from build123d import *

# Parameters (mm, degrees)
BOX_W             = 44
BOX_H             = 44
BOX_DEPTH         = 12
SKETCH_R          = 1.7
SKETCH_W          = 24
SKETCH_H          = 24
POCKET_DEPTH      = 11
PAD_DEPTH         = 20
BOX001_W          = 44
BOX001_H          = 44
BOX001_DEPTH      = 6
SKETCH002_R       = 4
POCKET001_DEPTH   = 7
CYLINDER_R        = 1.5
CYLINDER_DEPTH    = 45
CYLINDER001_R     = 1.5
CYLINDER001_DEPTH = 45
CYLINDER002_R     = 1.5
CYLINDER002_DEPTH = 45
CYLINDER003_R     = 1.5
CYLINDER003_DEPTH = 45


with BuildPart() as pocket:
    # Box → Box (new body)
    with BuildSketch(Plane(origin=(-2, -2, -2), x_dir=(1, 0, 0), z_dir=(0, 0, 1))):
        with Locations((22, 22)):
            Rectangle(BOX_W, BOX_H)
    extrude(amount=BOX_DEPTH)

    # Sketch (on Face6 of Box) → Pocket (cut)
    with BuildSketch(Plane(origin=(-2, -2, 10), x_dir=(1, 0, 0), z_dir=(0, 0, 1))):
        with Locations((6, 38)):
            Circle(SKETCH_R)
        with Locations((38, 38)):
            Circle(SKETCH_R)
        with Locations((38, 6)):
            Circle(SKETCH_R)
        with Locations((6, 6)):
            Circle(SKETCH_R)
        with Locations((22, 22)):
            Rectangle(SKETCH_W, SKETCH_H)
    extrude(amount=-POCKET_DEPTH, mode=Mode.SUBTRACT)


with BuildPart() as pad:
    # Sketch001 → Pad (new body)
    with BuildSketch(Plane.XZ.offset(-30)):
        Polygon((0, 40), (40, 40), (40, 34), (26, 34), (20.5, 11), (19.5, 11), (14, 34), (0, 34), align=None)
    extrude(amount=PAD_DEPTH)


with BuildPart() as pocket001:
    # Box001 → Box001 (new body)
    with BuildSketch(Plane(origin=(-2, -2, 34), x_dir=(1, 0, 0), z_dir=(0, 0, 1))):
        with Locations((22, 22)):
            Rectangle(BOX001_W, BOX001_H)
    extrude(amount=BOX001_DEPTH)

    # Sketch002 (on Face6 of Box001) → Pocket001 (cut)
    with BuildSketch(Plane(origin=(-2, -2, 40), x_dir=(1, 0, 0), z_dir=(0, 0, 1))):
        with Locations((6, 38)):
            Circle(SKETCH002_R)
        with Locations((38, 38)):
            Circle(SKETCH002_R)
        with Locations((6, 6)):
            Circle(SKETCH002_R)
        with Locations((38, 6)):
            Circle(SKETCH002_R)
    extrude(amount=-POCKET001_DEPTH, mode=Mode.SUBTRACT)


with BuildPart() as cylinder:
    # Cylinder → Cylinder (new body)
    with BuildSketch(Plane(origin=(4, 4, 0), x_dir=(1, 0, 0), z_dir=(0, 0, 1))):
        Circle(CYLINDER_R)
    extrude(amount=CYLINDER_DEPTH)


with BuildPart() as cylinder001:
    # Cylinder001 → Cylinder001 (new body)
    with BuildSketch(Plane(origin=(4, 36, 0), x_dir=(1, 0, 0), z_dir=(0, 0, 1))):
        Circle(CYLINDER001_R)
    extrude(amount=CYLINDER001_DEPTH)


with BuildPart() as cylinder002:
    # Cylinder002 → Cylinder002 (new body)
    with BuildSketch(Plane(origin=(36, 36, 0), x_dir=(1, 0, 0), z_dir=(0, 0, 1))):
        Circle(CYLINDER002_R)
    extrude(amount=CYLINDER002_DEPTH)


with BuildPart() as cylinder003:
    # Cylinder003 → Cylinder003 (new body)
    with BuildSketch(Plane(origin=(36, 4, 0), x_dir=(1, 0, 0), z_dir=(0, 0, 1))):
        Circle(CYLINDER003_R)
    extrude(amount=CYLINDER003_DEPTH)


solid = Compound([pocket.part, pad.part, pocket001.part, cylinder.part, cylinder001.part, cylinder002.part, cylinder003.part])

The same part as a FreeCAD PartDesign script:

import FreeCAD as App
import Part
import Sketcher
from FreeCAD import Vector

doc = App.newDocument("Part")
params = doc.addObject("Spreadsheet::Sheet", "Params")
for row, (alias, value) in enumerate([
    ("sketch1_width", "44 mm"),
    ("pad1_length", "12 mm"),
    ("sketch2_diameter", "3.4 mm"),
    ("sketch2_width", "24 mm"),
    ("pocket1_length", "11 mm"),
    ("sketch3_width", "40 mm"),
    ("sketch3_width2", "14 mm"),
    ("sketch3_width3", "1 mm"),
    ("sketch3_height", "6 mm"),
    ("pad2_length", "20 mm"),
    ("sketch4_width", "44 mm"),
    ("pad3_length", "6 mm"),
    ("sketch5_diameter", "8 mm"),
    ("pocket2_length", "7 mm"),
    ("sketch6_diameter", "3 mm"),
    ("pad4_length", "45 mm"),
    ("sketch7_diameter", "3 mm"),
    ("pad5_length", "45 mm"),
    ("sketch8_diameter", "3 mm"),
    ("pad6_length", "45 mm"),
    ("sketch9_diameter", "3 mm"),
    ("pad7_length", "45 mm"),
], start=1):
    params.set(f"A{row}", alias)
    params.set(f"B{row}", "=" + value)
    params.setAlias(f"B{row}", alias)

body = doc.addObject("PartDesign::Body", "Body")

# Sketch on XY plane
sketch1 = doc.addObject("Sketcher::SketchObject", "Sketch")
body.addObject(sketch1)
sketch1.AttachmentSupport = (doc.XY_Plane, [""])
sketch1.MapMode = "FlatFace"
sketch1.AttachmentOffset = App.Placement(Vector(0, 0, -2), App.Rotation())
sketch1.addGeometry(Part.LineSegment(Vector(-2, 42, 0), Vector(-2, -2, 0)), False)
sketch1.addGeometry(Part.LineSegment(Vector(-2, -2, 0), Vector(42, -2, 0)), False)
sketch1.addGeometry(Part.LineSegment(Vector(42, -2, 0), Vector(42, 42, 0)), False)
sketch1.addGeometry(Part.LineSegment(Vector(42, 42, 0), Vector(-2, 42, 0)), False)
sketch1.addConstraint(Sketcher.Constraint("Coincident", 0, 2, 1, 1))
sketch1.addConstraint(Sketcher.Constraint("Coincident", 1, 2, 2, 1))
sketch1.addConstraint(Sketcher.Constraint("Coincident", 2, 2, 3, 1))
sketch1.addConstraint(Sketcher.Constraint("Coincident", 3, 2, 0, 1))
sketch1.addConstraint(Sketcher.Constraint("Vertical", 0))
sketch1.addConstraint(Sketcher.Constraint("Horizontal", 1))
sketch1.addConstraint(Sketcher.Constraint("Vertical", 2))
sketch1.addConstraint(Sketcher.Constraint("Horizontal", 3))
sketch1.addConstraint(Sketcher.Constraint("Equal", 3, 0))
sketch1.addConstraint(Sketcher.Constraint("DistanceX", 1, 1, 1, 2, 44.0))
sketch1.addConstraint(Sketcher.Constraint("DistanceX", 0, 2, -1, 1, 2.0))
sketch1.addConstraint(Sketcher.Constraint("DistanceY", 0, 2, -1, 1, 2.0))
sketch1.setExpression("Constraints[9]", "Params.sketch1_width")
pad1 = doc.addObject("PartDesign::Pad", "Pad")
body.addObject(pad1)
pad1.Profile = sketch1
pad1.setExpression("Length", "Params.pad1_length")

# Sketch on XY plane
sketch2 = doc.addObject("Sketcher::SketchObject", "Sketch001")
body.addObject(sketch2)
sketch2.AttachmentSupport = (doc.XY_Plane, [""])
sketch2.MapMode = "FlatFace"
sketch2.AttachmentOffset = App.Placement(Vector(0, 0, 10), App.Rotation())
sketch2.addGeometry(Part.Circle(Vector(4, 36, 0), Vector(0, 0, 1), 1.7), False)
sketch2.addGeometry(Part.Circle(Vector(36, 36, 0), Vector(0, 0, 1), 1.7), False)
sketch2.addGeometry(Part.Circle(Vector(36, 4, 0), Vector(0, 0, 1), 1.7), False)
sketch2.addGeometry(Part.Circle(Vector(4, 4, 0), Vector(0, 0, 1), 1.7), False)
sketch2.addGeometry(Part.LineSegment(Vector(8, 32, 0), Vector(8, 8, 0)), False)
sketch2.addGeometry(Part.LineSegment(Vector(8, 8, 0), Vector(32, 8, 0)), False)
sketch2.addGeometry(Part.LineSegment(Vector(32, 8, 0), Vector(32, 32, 0)), False)
sketch2.addGeometry(Part.LineSegment(Vector(32, 32, 0), Vector(8, 32, 0)), False)
sketch2.addConstraint(Sketcher.Constraint("Coincident", 4, 2, 5, 1))
sketch2.addConstraint(Sketcher.Constraint("Coincident", 5, 2, 6, 1))
sketch2.addConstraint(Sketcher.Constraint("Coincident", 6, 2, 7, 1))
sketch2.addConstraint(Sketcher.Constraint("Coincident", 7, 2, 4, 1))
sketch2.addConstraint(Sketcher.Constraint("Vertical", 4))
sketch2.addConstraint(Sketcher.Constraint("Horizontal", 5))
sketch2.addConstraint(Sketcher.Constraint("Vertical", 6))
sketch2.addConstraint(Sketcher.Constraint("Horizontal", 7))
sketch2.addConstraint(Sketcher.Constraint("Equal", 0, 1))
sketch2.addConstraint(Sketcher.Constraint("Equal", 1, 2))
sketch2.addConstraint(Sketcher.Constraint("Equal", 2, 3))
sketch2.addConstraint(Sketcher.Constraint("Horizontal", 0, 3, 1, 3))
sketch2.addConstraint(Sketcher.Constraint("Horizontal", 2, 3, 3, 3))
sketch2.addConstraint(Sketcher.Constraint("Vertical", 1, 3, 2, 3))
sketch2.addConstraint(Sketcher.Constraint("Vertical", 0, 3, 3, 3))
sketch2.addConstraint(Sketcher.Constraint("Equal", 7, 4))
sketch2.addConstraint(Sketcher.Constraint("Diameter", 0, 3.4))
sketch2.addConstraint(Sketcher.Constraint("DistanceX", 5, 1, 5, 2, 24.0))
sketch2.addConstraint(Sketcher.Constraint("DistanceX", -1, 1, 0, 3, 4.0))
sketch2.addConstraint(Sketcher.Constraint("DistanceY", -1, 1, 0, 3, 36.0))
sketch2.addConstraint(Sketcher.Constraint("DistanceX", -1, 1, 1, 3, 36.0))
sketch2.addConstraint(Sketcher.Constraint("DistanceY", -1, 1, 2, 3, 4.0))
sketch2.addConstraint(Sketcher.Constraint("DistanceX", -1, 1, 4, 2, 8.0))
sketch2.addConstraint(Sketcher.Constraint("DistanceY", -1, 1, 4, 2, 8.0))
sketch2.setExpression("Constraints[16]", "Params.sketch2_diameter")
sketch2.setExpression("Constraints[17]", "Params.sketch2_width")
pocket1 = doc.addObject("PartDesign::Pocket", "Pocket")
body.addObject(pocket1)
pocket1.Profile = sketch2
pocket1.setExpression("Length", "Params.pocket1_length")
body2 = doc.addObject("PartDesign::Body", "Body001")

# Sketch on XZ plane
sketch3 = doc.addObject("Sketcher::SketchObject", "Sketch002")
body2.addObject(sketch3)
sketch3.AttachmentSupport = (doc.getObject("XZ_Plane001"), [""])
sketch3.MapMode = "FlatFace"
sketch3.AttachmentOffset = App.Placement(Vector(0, 0, -30), App.Rotation())
sketch3.addGeometry(Part.LineSegment(Vector(40, 40, 0), Vector(0, 40, 0)), False)
sketch3.addGeometry(Part.LineSegment(Vector(0, 40, 0), Vector(0, 34, 0)), False)
sketch3.addGeometry(Part.LineSegment(Vector(0, 34, 0), Vector(14, 34, 0)), False)
sketch3.addGeometry(Part.LineSegment(Vector(14, 34, 0), Vector(19.5, 11, 0)), False)
sketch3.addGeometry(Part.LineSegment(Vector(19.5, 11, 0), Vector(20.5, 11, 0)), False)
sketch3.addGeometry(Part.LineSegment(Vector(20.5, 11, 0), Vector(26, 34, 0)), False)
sketch3.addGeometry(Part.LineSegment(Vector(26, 34, 0), Vector(40, 34, 0)), False)
sketch3.addGeometry(Part.LineSegment(Vector(40, 34, 0), Vector(40, 40, 0)), False)
sketch3.addConstraint(Sketcher.Constraint("Coincident", 0, 2, 1, 1))
sketch3.addConstraint(Sketcher.Constraint("Coincident", 1, 2, 2, 1))
sketch3.addConstraint(Sketcher.Constraint("Coincident", 2, 2, 3, 1))
sketch3.addConstraint(Sketcher.Constraint("Coincident", 3, 2, 4, 1))
sketch3.addConstraint(Sketcher.Constraint("Coincident", 4, 2, 5, 1))
sketch3.addConstraint(Sketcher.Constraint("Coincident", 5, 2, 6, 1))
sketch3.addConstraint(Sketcher.Constraint("Coincident", 6, 2, 7, 1))
sketch3.addConstraint(Sketcher.Constraint("Coincident", 7, 2, 0, 1))
sketch3.addConstraint(Sketcher.Constraint("Horizontal", 0))
sketch3.addConstraint(Sketcher.Constraint("Vertical", 1))
sketch3.addConstraint(Sketcher.Constraint("Horizontal", 2))
sketch3.addConstraint(Sketcher.Constraint("Horizontal", 4))
sketch3.addConstraint(Sketcher.Constraint("Horizontal", 6))
sketch3.addConstraint(Sketcher.Constraint("Vertical", 7))
sketch3.addConstraint(Sketcher.Constraint("PointOnObject", 0, 2, -2))
sketch3.addConstraint(Sketcher.Constraint("Horizontal", 2, 2, 5, 2))
sketch3.addConstraint(Sketcher.Constraint("Equal", 2, 6))
sketch3.addConstraint(Sketcher.Constraint("Equal", 3, 5))
sketch3.addConstraint(Sketcher.Constraint("DistanceX", 0, 2, 0, 1, 40.0))
sketch3.addConstraint(Sketcher.Constraint("DistanceX", 2, 1, 2, 2, 14.0))
sketch3.addConstraint(Sketcher.Constraint("DistanceX", 4, 1, 4, 2, 1.0))
sketch3.addConstraint(Sketcher.Constraint("DistanceY", 1, 2, 1, 1, 6.0))
sketch3.addConstraint(Sketcher.Constraint("DistanceY", -1, 1, 0, 2, 40.0))
sketch3.addConstraint(Sketcher.Constraint("DistanceY", -1, 1, 3, 2, 11.0))
sketch3.setExpression("Constraints[18]", "Params.sketch3_width")
sketch3.setExpression("Constraints[19]", "Params.sketch3_width2")
sketch3.setExpression("Constraints[20]", "Params.sketch3_width3")
sketch3.setExpression("Constraints[21]", "Params.sketch3_height")
pad2 = doc.addObject("PartDesign::Pad", "Pad001")
body2.addObject(pad2)
pad2.Profile = sketch3
pad2.setExpression("Length", "Params.pad2_length")
body3 = doc.addObject("PartDesign::Body", "Body002")

# Sketch on XY plane
sketch4 = doc.addObject("Sketcher::SketchObject", "Sketch003")
body3.addObject(sketch4)
sketch4.AttachmentSupport = (doc.getObject("XY_Plane002"), [""])
sketch4.MapMode = "FlatFace"
sketch4.AttachmentOffset = App.Placement(Vector(0, 0, 34), App.Rotation())
sketch4.addGeometry(Part.LineSegment(Vector(-2, 42, 0), Vector(-2, -2, 0)), False)
sketch4.addGeometry(Part.LineSegment(Vector(-2, -2, 0), Vector(42, -2, 0)), False)
sketch4.addGeometry(Part.LineSegment(Vector(42, -2, 0), Vector(42, 42, 0)), False)
sketch4.addGeometry(Part.LineSegment(Vector(42, 42, 0), Vector(-2, 42, 0)), False)
sketch4.addConstraint(Sketcher.Constraint("Coincident", 0, 2, 1, 1))
sketch4.addConstraint(Sketcher.Constraint("Coincident", 1, 2, 2, 1))
sketch4.addConstraint(Sketcher.Constraint("Coincident", 2, 2, 3, 1))
sketch4.addConstraint(Sketcher.Constraint("Coincident", 3, 2, 0, 1))
sketch4.addConstraint(Sketcher.Constraint("Vertical", 0))
sketch4.addConstraint(Sketcher.Constraint("Horizontal", 1))
sketch4.addConstraint(Sketcher.Constraint("Vertical", 2))
sketch4.addConstraint(Sketcher.Constraint("Horizontal", 3))
sketch4.addConstraint(Sketcher.Constraint("Equal", 3, 0))
sketch4.addConstraint(Sketcher.Constraint("DistanceX", 1, 1, 1, 2, 44.0))
sketch4.addConstraint(Sketcher.Constraint("DistanceX", 0, 2, -1, 1, 2.0))
sketch4.addConstraint(Sketcher.Constraint("DistanceY", 0, 2, -1, 1, 2.0))
sketch4.setExpression("Constraints[9]", "Params.sketch4_width")
pad3 = doc.addObject("PartDesign::Pad", "Pad002")
body3.addObject(pad3)
pad3.Profile = sketch4
pad3.setExpression("Length", "Params.pad3_length")

# Sketch on XY plane
sketch5 = doc.addObject("Sketcher::SketchObject", "Sketch004")
body3.addObject(sketch5)
sketch5.AttachmentSupport = (doc.getObject("XY_Plane002"), [""])
sketch5.MapMode = "FlatFace"
sketch5.AttachmentOffset = App.Placement(Vector(0, 0, 40), App.Rotation())
sketch5.addGeometry(Part.Circle(Vector(4, 36, 0), Vector(0, 0, 1), 4), False)
sketch5.addGeometry(Part.Circle(Vector(36, 36, 0), Vector(0, 0, 1), 4), False)
sketch5.addGeometry(Part.Circle(Vector(4, 4, 0), Vector(0, 0, 1), 4), False)
sketch5.addGeometry(Part.Circle(Vector(36, 4, 0), Vector(0, 0, 1), 4), False)
sketch5.addConstraint(Sketcher.Constraint("Equal", 0, 1))
sketch5.addConstraint(Sketcher.Constraint("Equal", 1, 2))
sketch5.addConstraint(Sketcher.Constraint("Equal", 2, 3))
sketch5.addConstraint(Sketcher.Constraint("Horizontal", 0, 3, 1, 3))
sketch5.addConstraint(Sketcher.Constraint("Horizontal", 2, 3, 3, 3))
sketch5.addConstraint(Sketcher.Constraint("Vertical", 0, 3, 2, 3))
sketch5.addConstraint(Sketcher.Constraint("Vertical", 1, 3, 3, 3))
sketch5.addConstraint(Sketcher.Constraint("Diameter", 0, 8.0))
sketch5.addConstraint(Sketcher.Constraint("DistanceX", -1, 1, 0, 3, 4.0))
sketch5.addConstraint(Sketcher.Constraint("DistanceY", -1, 1, 0, 3, 36.0))
sketch5.addConstraint(Sketcher.Constraint("DistanceX", -1, 1, 1, 3, 36.0))
sketch5.addConstraint(Sketcher.Constraint("DistanceY", -1, 1, 2, 3, 4.0))
sketch5.setExpression("Constraints[7]", "Params.sketch5_diameter")
pocket2 = doc.addObject("PartDesign::Pocket", "Pocket001")
body3.addObject(pocket2)
pocket2.Profile = sketch5
pocket2.setExpression("Length", "Params.pocket2_length")
body4 = doc.addObject("PartDesign::Body", "Body003")

# Sketch on XY plane
sketch6 = doc.addObject("Sketcher::SketchObject", "Sketch005")
body4.addObject(sketch6)
sketch6.AttachmentSupport = (doc.getObject("XY_Plane003"), [""])
sketch6.MapMode = "FlatFace"
sketch6.addGeometry(Part.Circle(Vector(4, 4, 0), Vector(0, 0, 1), 1.5), False)
sketch6.addConstraint(Sketcher.Constraint("Diameter", 0, 3.0))
sketch6.addConstraint(Sketcher.Constraint("DistanceX", -1, 1, 0, 3, 4.0))
sketch6.addConstraint(Sketcher.Constraint("DistanceY", -1, 1, 0, 3, 4.0))
sketch6.setExpression("Constraints[0]", "Params.sketch6_diameter")
pad4 = doc.addObject("PartDesign::Pad", "Pad003")
body4.addObject(pad4)
pad4.Profile = sketch6
pad4.setExpression("Length", "Params.pad4_length")
body5 = doc.addObject("PartDesign::Body", "Body004")

# Sketch on XY plane
sketch7 = doc.addObject("Sketcher::SketchObject", "Sketch006")
body5.addObject(sketch7)
sketch7.AttachmentSupport = (doc.getObject("XY_Plane004"), [""])
sketch7.MapMode = "FlatFace"
sketch7.addGeometry(Part.Circle(Vector(4, 36, 0), Vector(0, 0, 1), 1.5), False)
sketch7.addConstraint(Sketcher.Constraint("Diameter", 0, 3.0))
sketch7.addConstraint(Sketcher.Constraint("DistanceX", -1, 1, 0, 3, 4.0))
sketch7.addConstraint(Sketcher.Constraint("DistanceY", -1, 1, 0, 3, 36.0))
sketch7.setExpression("Constraints[0]", "Params.sketch7_diameter")
pad5 = doc.addObject("PartDesign::Pad", "Pad004")
body5.addObject(pad5)
pad5.Profile = sketch7
pad5.setExpression("Length", "Params.pad5_length")
body6 = doc.addObject("PartDesign::Body", "Body005")

# Sketch on XY plane
sketch8 = doc.addObject("Sketcher::SketchObject", "Sketch007")
body6.addObject(sketch8)
sketch8.AttachmentSupport = (doc.getObject("XY_Plane005"), [""])
sketch8.MapMode = "FlatFace"
sketch8.addGeometry(Part.Circle(Vector(36, 36, 0), Vector(0, 0, 1), 1.5), False)
sketch8.addConstraint(Sketcher.Constraint("Diameter", 0, 3.0))
sketch8.addConstraint(Sketcher.Constraint("DistanceX", -1, 1, 0, 3, 36.0))
sketch8.addConstraint(Sketcher.Constraint("DistanceY", -1, 1, 0, 3, 36.0))
sketch8.setExpression("Constraints[0]", "Params.sketch8_diameter")
pad6 = doc.addObject("PartDesign::Pad", "Pad005")
body6.addObject(pad6)
pad6.Profile = sketch8
pad6.setExpression("Length", "Params.pad6_length")
body7 = doc.addObject("PartDesign::Body", "Body006")

# Sketch on XY plane
sketch9 = doc.addObject("Sketcher::SketchObject", "Sketch008")
body7.addObject(sketch9)
sketch9.AttachmentSupport = (doc.getObject("XY_Plane006"), [""])
sketch9.MapMode = "FlatFace"
sketch9.addGeometry(Part.Circle(Vector(36, 4, 0), Vector(0, 0, 1), 1.5), False)
sketch9.addConstraint(Sketcher.Constraint("Diameter", 0, 3.0))
sketch9.addConstraint(Sketcher.Constraint("DistanceX", -1, 1, 0, 3, 36.0))
sketch9.addConstraint(Sketcher.Constraint("DistanceY", -1, 1, 0, 3, 4.0))
sketch9.setExpression("Constraints[0]", "Params.sketch9_diameter")
pad7 = doc.addObject("PartDesign::Pad", "Pad006")
body7.addObject(pad7)
pad7.Profile = sketch9
pad7.setExpression("Length", "Params.pad7_length")

doc.recompute()
